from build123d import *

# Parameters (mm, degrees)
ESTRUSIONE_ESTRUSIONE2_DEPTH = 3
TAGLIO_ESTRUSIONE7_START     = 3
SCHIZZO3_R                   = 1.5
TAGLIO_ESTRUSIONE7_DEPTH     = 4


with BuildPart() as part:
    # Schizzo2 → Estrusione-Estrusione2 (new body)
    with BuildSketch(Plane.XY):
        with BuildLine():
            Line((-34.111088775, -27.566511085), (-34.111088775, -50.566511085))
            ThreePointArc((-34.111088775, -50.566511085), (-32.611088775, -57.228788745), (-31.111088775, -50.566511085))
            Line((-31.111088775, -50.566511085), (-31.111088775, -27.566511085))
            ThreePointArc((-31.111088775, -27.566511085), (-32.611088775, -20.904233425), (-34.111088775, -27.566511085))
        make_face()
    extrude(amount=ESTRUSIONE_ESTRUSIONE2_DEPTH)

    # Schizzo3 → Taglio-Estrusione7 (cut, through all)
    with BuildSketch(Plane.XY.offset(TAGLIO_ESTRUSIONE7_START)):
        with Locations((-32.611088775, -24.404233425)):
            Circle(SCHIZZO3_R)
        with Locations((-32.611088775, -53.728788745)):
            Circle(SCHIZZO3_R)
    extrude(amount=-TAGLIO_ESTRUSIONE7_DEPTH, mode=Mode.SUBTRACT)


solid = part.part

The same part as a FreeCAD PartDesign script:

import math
import FreeCAD as App
import Part
import Sketcher

V = App.Vector
Q = App.Units.Quantity

doc = App.newDocument("Part")
body = doc.addObject("PartDesign::Body", "Body")

sketch1 = body.newObject("Sketcher::SketchObject", "Sketch")
sketch1.AttachmentSupport = (doc.getObject("XY_Plane"), [""])
sketch1.MapMode = "FlatFace"
sketch1.addGeometry([
    Part.LineSegment(V(-34.1, -27.6, 0), V(-34.1, -50.6, 0)),
    Part.ArcOfCircle(Part.Circle(V(-32.6, -53.7, 0), V(0, 0, 1), 3.5), math.radians(115), math.radians(425)),
    Part.LineSegment(V(-31.1, -50.6, 0), V(-31.1, -27.6, 0)),
    Part.ArcOfCircle(Part.Circle(V(-32.6, -24.4, 0), V(0, 0, 1), 3.5), math.radians(-65), math.radians(245)),
], False)
sketch1.addConstraint([
    Sketcher.Constraint("Coincident", 0, 2, 1, 1),
    Sketcher.Constraint("Coincident", 1, 2, 2, 1),
    Sketcher.Constraint("Coincident", 2, 2, 3, 1),
    Sketcher.Constraint("Coincident", 3, 2, 0, 1),
    Sketcher.Constraint("Vertical", 0),
    Sketcher.Constraint("Vertical", 2),
    Sketcher.Constraint("Equal", 1, 3),
    Sketcher.Constraint("Horizontal", 0, 2, 1, 2),
    Sketcher.Constraint("Horizontal", 2, 2, 3, 2),
    Sketcher.Constraint("Radius", 1, Q("3.5 mm")),
    Sketcher.Constraint("DistanceY", 0, 2, 0, 1, Q("23 mm")),
    Sketcher.Constraint("DistanceX", 0, 2, 1, 2, Q("3 mm")),
    Sketcher.Constraint("DistanceX", 1, 3, -1, 1, Q("32.611089 mm")),
    Sketcher.Constraint("DistanceY", 1, 3, -1, 1, Q("53.728789 mm")),
])
pad1 = body.newObject("PartDesign::Pad", "Pad")
pad1.Profile = sketch1
pad1.Length = 3

sketch2 = body.newObject("Sketcher::SketchObject", "Sketch001")
sketch2.AttachmentSupport = (doc.getObject("XY_Plane"), [""])
sketch2.MapMode = "FlatFace"
sketch2.AttachmentOffset = App.Placement(V(0, 0, 3), App.Rotation())
sketch2.addGeometry([
    Part.Circle(V(-32.6, -24.4, 0), V(0, 0, 1), 1.5),
    Part.Circle(V(-32.6, -53.7, 0), V(0, 0, 1), 1.5),
], False)
sketch2.addConstraint([
    Sketcher.Constraint("Equal", 0, 1),
    Sketcher.Constraint("Vertical", 0, 3, 1, 3),
    Sketcher.Constraint("Diameter", 0, Q("3 mm")),
    Sketcher.Constraint("DistanceX", 0, 3, -1, 1, Q("32.611089 mm")),
    Sketcher.Constraint("DistanceY", 1, 3, -1, 1, Q("53.728789 mm")),
    Sketcher.Constraint("DistanceY", 0, 3, -1, 1, Q("24.404233 mm")),
])
pocket1 = body.newObject("PartDesign::Pocket", "Pocket")
pocket1.Profile = sketch2
pocket1.Type = "ThroughAll"

doc.recompute()
